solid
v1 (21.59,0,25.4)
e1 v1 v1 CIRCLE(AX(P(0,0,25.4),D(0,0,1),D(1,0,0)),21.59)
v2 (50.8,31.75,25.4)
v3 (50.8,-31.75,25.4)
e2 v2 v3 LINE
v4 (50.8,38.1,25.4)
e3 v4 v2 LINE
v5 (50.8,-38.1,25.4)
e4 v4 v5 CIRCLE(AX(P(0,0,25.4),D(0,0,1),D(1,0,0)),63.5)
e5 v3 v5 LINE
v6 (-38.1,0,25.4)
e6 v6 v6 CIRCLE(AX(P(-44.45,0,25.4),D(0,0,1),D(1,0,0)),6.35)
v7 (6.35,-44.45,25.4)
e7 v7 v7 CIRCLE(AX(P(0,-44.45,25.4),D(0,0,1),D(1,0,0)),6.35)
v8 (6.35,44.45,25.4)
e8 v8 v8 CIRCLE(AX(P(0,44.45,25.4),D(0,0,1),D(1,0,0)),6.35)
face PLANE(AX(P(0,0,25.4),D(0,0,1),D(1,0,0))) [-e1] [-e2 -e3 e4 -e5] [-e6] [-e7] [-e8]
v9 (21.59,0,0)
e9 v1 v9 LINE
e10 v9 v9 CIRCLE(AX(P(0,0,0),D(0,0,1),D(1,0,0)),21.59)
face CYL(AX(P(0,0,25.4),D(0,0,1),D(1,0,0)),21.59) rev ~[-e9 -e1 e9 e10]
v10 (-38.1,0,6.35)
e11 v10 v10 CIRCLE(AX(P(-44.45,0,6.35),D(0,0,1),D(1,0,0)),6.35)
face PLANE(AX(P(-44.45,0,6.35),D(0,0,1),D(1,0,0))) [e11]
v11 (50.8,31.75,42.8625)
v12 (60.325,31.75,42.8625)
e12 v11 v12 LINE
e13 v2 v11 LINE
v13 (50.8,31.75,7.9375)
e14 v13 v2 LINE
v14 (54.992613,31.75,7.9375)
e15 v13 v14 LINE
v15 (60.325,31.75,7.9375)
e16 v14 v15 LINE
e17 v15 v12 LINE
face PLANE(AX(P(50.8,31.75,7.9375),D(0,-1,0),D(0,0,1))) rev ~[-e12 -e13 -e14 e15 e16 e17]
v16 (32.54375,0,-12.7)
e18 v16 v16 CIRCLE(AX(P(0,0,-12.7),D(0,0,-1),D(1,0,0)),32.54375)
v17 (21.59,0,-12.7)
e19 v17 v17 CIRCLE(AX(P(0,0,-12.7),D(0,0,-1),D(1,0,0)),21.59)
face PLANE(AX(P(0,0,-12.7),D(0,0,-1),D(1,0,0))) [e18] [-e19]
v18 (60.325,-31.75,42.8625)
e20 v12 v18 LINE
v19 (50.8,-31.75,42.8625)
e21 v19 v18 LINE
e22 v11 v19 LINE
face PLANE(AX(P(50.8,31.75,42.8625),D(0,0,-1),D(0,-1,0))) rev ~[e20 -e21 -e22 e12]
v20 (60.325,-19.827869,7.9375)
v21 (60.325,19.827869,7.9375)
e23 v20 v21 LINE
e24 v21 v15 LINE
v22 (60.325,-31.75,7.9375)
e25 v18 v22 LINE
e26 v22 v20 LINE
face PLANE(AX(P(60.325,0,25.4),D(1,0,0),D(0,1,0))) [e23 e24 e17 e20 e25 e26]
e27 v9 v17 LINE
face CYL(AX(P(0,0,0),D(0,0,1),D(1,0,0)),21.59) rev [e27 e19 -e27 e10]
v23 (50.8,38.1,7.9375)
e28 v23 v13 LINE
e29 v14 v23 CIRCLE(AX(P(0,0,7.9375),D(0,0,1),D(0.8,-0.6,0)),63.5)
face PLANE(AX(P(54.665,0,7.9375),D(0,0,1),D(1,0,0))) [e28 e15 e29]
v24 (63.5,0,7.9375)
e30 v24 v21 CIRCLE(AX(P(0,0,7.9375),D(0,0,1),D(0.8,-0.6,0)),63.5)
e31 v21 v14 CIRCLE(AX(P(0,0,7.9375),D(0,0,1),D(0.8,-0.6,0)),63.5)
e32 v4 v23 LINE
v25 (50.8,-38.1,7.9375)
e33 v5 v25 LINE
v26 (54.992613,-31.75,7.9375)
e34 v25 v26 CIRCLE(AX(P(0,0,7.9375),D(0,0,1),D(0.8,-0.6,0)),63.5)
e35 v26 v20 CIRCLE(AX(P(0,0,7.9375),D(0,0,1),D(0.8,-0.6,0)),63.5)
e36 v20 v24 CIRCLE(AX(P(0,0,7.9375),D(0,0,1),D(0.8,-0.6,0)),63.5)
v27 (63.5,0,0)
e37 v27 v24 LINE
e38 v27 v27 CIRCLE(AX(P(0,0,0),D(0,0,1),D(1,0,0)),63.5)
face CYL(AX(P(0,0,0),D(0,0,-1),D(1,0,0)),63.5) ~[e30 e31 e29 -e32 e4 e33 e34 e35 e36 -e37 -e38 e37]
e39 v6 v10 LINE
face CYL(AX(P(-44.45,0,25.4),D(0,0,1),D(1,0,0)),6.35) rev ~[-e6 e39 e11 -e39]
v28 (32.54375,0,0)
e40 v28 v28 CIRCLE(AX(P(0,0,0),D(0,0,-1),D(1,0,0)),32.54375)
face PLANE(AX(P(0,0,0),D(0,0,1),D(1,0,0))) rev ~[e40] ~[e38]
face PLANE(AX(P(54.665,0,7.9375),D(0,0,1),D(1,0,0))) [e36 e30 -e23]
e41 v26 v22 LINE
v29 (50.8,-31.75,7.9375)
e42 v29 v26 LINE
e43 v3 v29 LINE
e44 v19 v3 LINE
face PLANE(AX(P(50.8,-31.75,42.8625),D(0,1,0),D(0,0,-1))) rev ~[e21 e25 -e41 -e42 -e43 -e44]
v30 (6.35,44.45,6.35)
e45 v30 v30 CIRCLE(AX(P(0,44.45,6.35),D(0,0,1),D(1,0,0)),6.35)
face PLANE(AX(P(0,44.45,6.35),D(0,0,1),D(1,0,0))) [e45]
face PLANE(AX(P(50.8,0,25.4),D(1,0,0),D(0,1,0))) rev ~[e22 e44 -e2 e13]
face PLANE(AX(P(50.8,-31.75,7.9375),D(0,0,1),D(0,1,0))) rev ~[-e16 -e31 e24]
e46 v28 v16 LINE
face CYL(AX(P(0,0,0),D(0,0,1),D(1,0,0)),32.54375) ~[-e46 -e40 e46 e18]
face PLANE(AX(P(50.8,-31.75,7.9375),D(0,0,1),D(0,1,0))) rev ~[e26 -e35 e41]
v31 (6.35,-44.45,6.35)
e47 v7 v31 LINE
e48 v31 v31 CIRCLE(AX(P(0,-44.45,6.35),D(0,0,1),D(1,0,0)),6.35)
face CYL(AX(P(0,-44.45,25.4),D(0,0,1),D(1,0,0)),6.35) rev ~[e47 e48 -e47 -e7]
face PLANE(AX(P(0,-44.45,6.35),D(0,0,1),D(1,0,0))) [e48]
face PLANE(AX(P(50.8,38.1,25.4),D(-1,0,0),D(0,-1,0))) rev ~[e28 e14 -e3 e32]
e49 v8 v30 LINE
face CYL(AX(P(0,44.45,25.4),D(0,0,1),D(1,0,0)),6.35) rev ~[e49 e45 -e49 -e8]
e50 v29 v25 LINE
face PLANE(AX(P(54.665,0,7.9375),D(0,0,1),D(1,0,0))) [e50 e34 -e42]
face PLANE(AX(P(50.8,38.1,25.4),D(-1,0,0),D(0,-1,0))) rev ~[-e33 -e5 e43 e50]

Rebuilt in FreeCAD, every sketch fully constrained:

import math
import FreeCAD as App
import Part
import Sketcher
from FreeCAD import Vector
Q = App.Units.Quantity


def add_polygon(sketch, points):
    """Adds a closed chain of lines whose ends are joined by coincident constraints."""
    first, n = sketch.GeometryCount, len(points)
    for a, b in zip(points, points[1:] + points[:1]):
        sketch.addGeometry(Part.LineSegment(App.Vector(*a, 0), App.Vector(*b, 0)), False)
    for i in range(n):
        sketch.addConstraint(Sketcher.Constraint("Coincident", first + i, 2, first + (i + 1) % n, 1))

doc = App.newDocument("Part")
body = doc.addObject("PartDesign::Body", "Body")

# Sketch on XY plane
sketch1 = body.newObject("Sketcher::SketchObject", "Sketch")
sketch1.AttachmentSupport = (doc.getObject("XY_Plane"), [""])
sketch1.MapMode = "FlatFace"
sketch1.addGeometry(Part.Circle(Vector(0, 0, 0), Vector(0, 0, 1), 64), False)
sketch1.addConstraint([
    Sketcher.Constraint("Coincident", 0, 3, -1, 1),
    Sketcher.Constraint("Diameter", 0, Q("5 in")),
])
pad1 = body.newObject("PartDesign::Pad", "Pad")
pad1.Profile = sketch1
pad1.Length = Q("1 in")

# Sketch on XY plane
sketch2 = body.newObject("Sketcher::SketchObject", "Sketch001")
sketch2.AttachmentSupport = (doc.getObject("XY_Plane"), [""])
sketch2.MapMode = "FlatFace"
sketch2.AttachmentOffset = App.Placement(Vector(0, 0, 1 * 25.4), App.Rotation())
sketch2.addGeometry([
    Part.ArcOfCircle(Part.Circle(Vector(0, 0, 0), Vector(0, 0, 1), 64), math.radians(-37), math.radians(37)),
    Part.LineSegment(Vector(51, 38, 0), Vector(51, -38, 0)),
], False)
sketch2.addConstraint([
    Sketcher.Constraint("Coincident", 0, 1, 1, 2),
    Sketcher.Constraint("Coincident", 1, 1, 0, 2),
    Sketcher.Constraint("Vertical", 1),
    Sketcher.Constraint("Coincident", 0, 3, -1, 1),
    Sketcher.Constraint("Radius", 0, Q("2.5 in")),
    Sketcher.Constraint("DistanceY", 1, 2, 1, 1, Q("3 in")),
])
pocket1 = body.newObject("PartDesign::Pocket", "Pocket")
pocket1.Profile = sketch2
pocket1.Length = Q("0.6875 in")

# Sketch on XY plane
sketch3 = body.newObject("Sketcher::SketchObject", "Sketch002")
sketch3.AttachmentSupport = (doc.getObject("XY_Plane"), [""])
sketch3.MapMode = "FlatFace"
sketch3.AttachmentOffset = App.Placement(Vector(0, 0, 1 * 25.4), App.Rotation())
sketch3.addGeometry([
    Part.Circle(Vector(0, 44, 0), Vector(0, 0, 1), 6),
    Part.Circle(Vector(-44, 0, 0), Vector(0, 0, 1), 6),
    Part.Circle(Vector(0, -44, 0), Vector(0, 0, 1), 6),
], False)
sketch3.addConstraint([
    Sketcher.Constraint("Equal", 0, 1),
    Sketcher.Constraint("Equal", 1, 2),
    Sketcher.Constraint("Symmetric", 0, 3, 2, 3, -1, 1),
    Sketcher.Constraint("PointOnObject", 0, 3, -2),
    Sketcher.Constraint("PointOnObject", 1, 3, -1),
    Sketcher.Constraint("Diameter", 0, Q("0.5 in")),
    Sketcher.Constraint("DistanceY", 2, 3, 0, 3, Q("3.5 in")),
    Sketcher.Constraint("DistanceX", 1, 3, -1, 1, Q("1.75 in")),
])
pocket2 = body.newObject("PartDesign::Pocket", "Pocket001")
pocket2.Profile = sketch3
pocket2.Length = Q("0.75 in")

# Sketch on XY plane
sketch4 = body.newObject("Sketcher::SketchObject", "Sketch003")
sketch4.AttachmentSupport = (doc.getObject("XY_Plane"), [""])
sketch4.MapMode = "FlatFace"
sketch4.AttachmentOffset = App.Placement(Vector(0, 0, 1 * 25.4), App.Rotation())
sketch4.addGeometry(Part.Circle(Vector(0, 0, 0), Vector(0, 0, 1), 22), False)
sketch4.addConstraint([
    Sketcher.Constraint("Coincident", 0, 3, -1, 1),
    Sketcher.Constraint("Diameter", 0, Q("1.7 in")),
])
pocket3 = body.newObject("PartDesign::Pocket", "Pocket002")
pocket3.Profile = sketch4
pocket3.Type = "ThroughAll"

# Sketch on XY plane
sketch5 = body.newObject("Sketcher::SketchObject", "Sketch004")
sketch5.AttachmentSupport = (doc.getObject("XY_Plane"), [""])
sketch5.MapMode = "FlatFace"
sketch5.addGeometry([
    Part.Circle(Vector(0, 0, 0), Vector(0, 0, 1), 33),
    Part.Circle(Vector(0, 0, 0), Vector(0, 0, 1), 22),
], False)
sketch5.addConstraint([
    Sketcher.Constraint("Coincident", 0, 3, -1, 1),
    Sketcher.Constraint("Coincident", 1, 3, -1, 1),
    Sketcher.Constraint("Diameter", 1, Q("1.7 in")),
    Sketcher.Constraint("Diameter", 0, Q("2.5625 in")),
])
pad2 = body.newObject("PartDesign::Pad", "Pad001")
pad2.Profile = sketch5
pad2.Length = Q("0.5 in")
pad2.Reversed = True

# Sketch on YZ plane
sketch6 = body.newObject("Sketcher::SketchObject", "Sketch005")
sketch6.AttachmentSupport = (doc.getObject("YZ_Plane"), [""])
sketch6.MapMode = "FlatFace"
sketch6.AttachmentOffset = App.Placement(Vector(0, 0, 2 * 25.4), App.Rotation())
add_polygon(sketch6, [(-32, 8), (32, 8), (32, 43), (-32, 43)])  # lines 0-3
sketch6.addConstraint([
    Sketcher.Constraint("Horizontal", 0),
    Sketcher.Constraint("Vertical", 1),
    Sketcher.Constraint("Horizontal", 2),
    Sketcher.Constraint("Vertical", 3),
    Sketcher.Constraint("DistanceX", 0, 1, 0, 2, Q("2.5 in")),
    Sketcher.Constraint("DistanceY", 1, 1, 1, 2, Q("1.375 in")),
    Sketcher.Constraint("DistanceX", -1, 1, 0, 2, Q("1.25 in")),
    Sketcher.Constraint("DistanceY", -1, 1, 0, 2, Q("0.3125 in")),
])
pad3 = body.newObject("PartDesign::Pad", "Pad002")
pad3.Profile = sketch6
pad3.Length = Q("0.375 in")

doc.recompute()
